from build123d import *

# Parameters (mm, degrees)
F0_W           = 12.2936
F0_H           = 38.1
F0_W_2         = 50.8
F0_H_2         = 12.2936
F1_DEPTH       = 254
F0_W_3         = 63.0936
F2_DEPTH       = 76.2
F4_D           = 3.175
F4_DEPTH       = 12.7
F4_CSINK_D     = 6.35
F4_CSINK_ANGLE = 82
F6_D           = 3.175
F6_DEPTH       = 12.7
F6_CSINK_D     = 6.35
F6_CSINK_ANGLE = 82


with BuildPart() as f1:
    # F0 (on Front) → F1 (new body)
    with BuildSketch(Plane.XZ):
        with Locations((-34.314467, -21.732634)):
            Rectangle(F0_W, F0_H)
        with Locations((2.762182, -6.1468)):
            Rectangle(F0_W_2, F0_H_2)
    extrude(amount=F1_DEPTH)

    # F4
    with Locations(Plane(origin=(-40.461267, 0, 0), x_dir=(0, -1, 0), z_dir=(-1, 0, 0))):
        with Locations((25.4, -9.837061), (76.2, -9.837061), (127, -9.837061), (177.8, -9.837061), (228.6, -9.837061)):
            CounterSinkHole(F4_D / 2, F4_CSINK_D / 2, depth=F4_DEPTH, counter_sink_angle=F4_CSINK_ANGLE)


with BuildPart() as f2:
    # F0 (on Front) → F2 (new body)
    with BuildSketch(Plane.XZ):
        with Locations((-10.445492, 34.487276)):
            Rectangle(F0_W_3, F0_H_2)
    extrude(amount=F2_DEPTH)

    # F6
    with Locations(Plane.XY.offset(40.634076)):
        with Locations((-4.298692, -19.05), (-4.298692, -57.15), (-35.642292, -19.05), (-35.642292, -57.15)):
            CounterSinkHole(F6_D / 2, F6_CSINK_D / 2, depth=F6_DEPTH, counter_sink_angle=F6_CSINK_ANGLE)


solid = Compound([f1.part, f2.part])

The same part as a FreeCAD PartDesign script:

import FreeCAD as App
import Part
import Sketcher
from FreeCAD import Vector
Q = App.Units.Quantity

doc = App.newDocument("Part")
body = doc.addObject("PartDesign::Body", "Body")
body.AllowCompound = True

# Sketch on XZ plane
sketch1 = doc.addObject("Sketcher::SketchObject", "Sketch")
body.addObject(sketch1)
sketch1.AttachmentSupport = (doc.XZ_Plane, [""])
sketch1.MapMode = "FlatFace"
sketch1.addGeometry(Part.LineSegment(Vector(-40, -3, 0), Vector(-40, -41, 0)), False)
sketch1.addGeometry(Part.LineSegment(Vector(-40, -41, 0), Vector(-28, -41, 0)), False)
sketch1.addGeometry(Part.LineSegment(Vector(-28, -41, 0), Vector(-28, -3, 0)), False)
sketch1.addGeometry(Part.LineSegment(Vector(-28, -3, 0), Vector(-40, -3, 0)), False)
sketch1.addGeometry(Part.LineSegment(Vector(-23, 0, 0), Vector(-23, -12, 0)), False)
sketch1.addGeometry(Part.LineSegment(Vector(-23, -12, 0), Vector(28, -12, 0)), False)
sketch1.addGeometry(Part.LineSegment(Vector(28, -12, 0), Vector(28, 0, 0)), False)
sketch1.addGeometry(Part.LineSegment(Vector(28, 0, 0), Vector(-23, 0, 0)), False)
sketch1.addConstraint(Sketcher.Constraint("Coincident", 0, 2, 1, 1))
sketch1.addConstraint(Sketcher.Constraint("Coincident", 1, 2, 2, 1))
sketch1.addConstraint(Sketcher.Constraint("Coincident", 2, 2, 3, 1))
sketch1.addConstraint(Sketcher.Constraint("Coincident", 3, 2, 0, 1))
sketch1.addConstraint(Sketcher.Constraint("Coincident", 4, 2, 5, 1))
sketch1.addConstraint(Sketcher.Constraint("Coincident", 5, 2, 6, 1))
sketch1.addConstraint(Sketcher.Constraint("Coincident", 6, 2, 7, 1))
sketch1.addConstraint(Sketcher.Constraint("Coincident", 7, 2, 4, 1))
sketch1.addConstraint(Sketcher.Constraint("Vertical", 0))
sketch1.addConstraint(Sketcher.Constraint("Horizontal", 1))
sketch1.addConstraint(Sketcher.Constraint("Vertical", 2))
sketch1.addConstraint(Sketcher.Constraint("Horizontal", 3))
sketch1.addConstraint(Sketcher.Constraint("Vertical", 4))
sketch1.addConstraint(Sketcher.Constraint("Horizontal", 5))
sketch1.addConstraint(Sketcher.Constraint("Vertical", 6))
sketch1.addConstraint(Sketcher.Constraint("Horizontal", 7))
sketch1.addConstraint(Sketcher.Constraint("PointOnObject", 6, 2, -1))
sketch1.addConstraint(Sketcher.Constraint("Equal", 3, 4))
sketch1.addConstraint(Sketcher.Constraint("DistanceX", 5, 1, 5, 2, Q("2 in")))
sketch1.addConstraint(Sketcher.Constraint("DistanceY", 0, 2, 0, 1, Q("1.5 in")))
sketch1.addConstraint(Sketcher.Constraint("DistanceX", 1, 1, 1, 2, Q("0.484 in")))
sketch1.addConstraint(Sketcher.Constraint("DistanceX", 2, 2, 4, 2, 5.529849))
sketch1.addConstraint(Sketcher.Constraint("DistanceX", 0, 2, -1, 1, 40.461267))
sketch1.addConstraint(Sketcher.Constraint("DistanceY", 0, 2, -1, 1, 40.782634))
pad1 = doc.addObject("PartDesign::Pad", "Pad")
body.addObject(pad1)
pad1.Profile = sketch1
pad1.Length = Q("10 in")

# Sketch on YZ plane
sketch2 = doc.addObject("Sketcher::SketchObject", "Sketch001")
body.addObject(sketch2)
sketch2.AttachmentSupport = (doc.YZ_Plane, [""])
sketch2.MapMode = "FlatFace"
sketch2.AttachmentOffset = App.Placement(Vector(0, 0, -40.461267), App.Rotation())
sketch2.addGeometry(Part.Circle(Vector(-25.4, -9.8, 0), Vector(0, 0, 1), 1.6), False)
sketch2.addGeometry(Part.Circle(Vector(-76.2, -9.8, 0), Vector(0, 0, 1), 1.6), False)
sketch2.addGeometry(Part.Circle(Vector(-127, -9.8, 0), Vector(0, 0, 1), 1.6), False)
sketch2.addGeometry(Part.Circle(Vector(-177.8, -9.8, 0), Vector(0, 0, 1), 1.6), False)
sketch2.addGeometry(Part.Circle(Vector(-228.6, -9.8, 0), Vector(0, 0, 1), 1.6), False)
sketch2.addConstraint(Sketcher.Constraint("Equal", 0, 1))
sketch2.addConstraint(Sketcher.Constraint("Equal", 1, 2))
sketch2.addConstraint(Sketcher.Constraint("Equal", 2, 3))
sketch2.addConstraint(Sketcher.Constraint("Equal", 3, 4))
sketch2.addConstraint(Sketcher.Constraint("Horizontal", 0, 3, 1, 3))
sketch2.addConstraint(Sketcher.Constraint("Horizontal", 1, 3, 2, 3))
sketch2.addConstraint(Sketcher.Constraint("Horizontal", 2, 3, 3, 3))
sketch2.addConstraint(Sketcher.Constraint("Horizontal", 3, 3, 4, 3))
sketch2.addConstraint(Sketcher.Constraint("Diameter", 0, Q("0.125 in")))
sketch2.addConstraint(Sketcher.Constraint("DistanceX", 0, 3, -1, 1, Q("1 in")))
sketch2.addConstraint(Sketcher.Constraint("DistanceX", 1, 3, -1, 1, Q("3 in")))
sketch2.addConstraint(Sketcher.Constraint("DistanceX", 2, 3, -1, 1, Q("5 in")))
sketch2.addConstraint(Sketcher.Constraint("DistanceX", 3, 3, -1, 1, Q("7 in")))
sketch2.addConstraint(Sketcher.Constraint("DistanceX", 4, 3, -1, 1, Q("9 in")))
sketch2.addConstraint(Sketcher.Constraint("DistanceY", 0, 3, -1, 1, 9.837061))
doc.recompute()
hole = doc.addObject("PartDesign::Hole", "Hole")
body.addObject(hole)
hole.Profile = sketch2
hole.ThreadType = "None"
hole.Diameter = Q("0.125 in")
hole.DepthType = "Dimension"
hole.Depth = Q("0.5 in")
hole.DrillPoint = "Flat"
hole.HoleCutType = "Countersink"
hole.HoleCutDiameter = Q("0.25 in")
hole.HoleCutCountersinkAngle = 82
hole.Reversed = True
body2 = doc.addObject("PartDesign::Body", "Body001")

# Sketch on XZ plane
sketch3 = doc.addObject("Sketcher::SketchObject", "Sketch002")
body2.addObject(sketch3)
sketch3.AttachmentSupport = (doc.getObject("XZ_Plane001"), [""])
sketch3.MapMode = "FlatFace"
sketch3.addGeometry(Part.LineSegment(Vector(-42, 41, 0), Vector(-42, 28, 0)), False)
sketch3.addGeometry(Part.LineSegment(Vector(-42, 28, 0), Vector(21, 28, 0)), False)
sketch3.addGeometry(Part.LineSegment(Vector(21, 28, 0), Vector(21, 41, 0)), False)
sketch3.addGeometry(Part.LineSegment(Vector(21, 41, 0), Vector(-42, 41, 0)), False)
sketch3.addConstraint(Sketcher.Constraint("Coincident", 0, 2, 1, 1))
sketch3.addConstraint(Sketcher.Constraint("Coincident", 1, 2, 2, 1))
sketch3.addConstraint(Sketcher.Constraint("Coincident", 2, 2, 3, 1))
sketch3.addConstraint(Sketcher.Constraint("Coincident", 3, 2, 0, 1))
sketch3.addConstraint(Sketcher.Constraint("Vertical", 0))
sketch3.addConstraint(Sketcher.Constraint("Horizontal", 1))
sketch3.addConstraint(Sketcher.Constraint("Vertical", 2))
sketch3.addConstraint(Sketcher.Constraint("Horizontal", 3))
sketch3.addConstraint(Sketcher.Constraint("DistanceX", 1, 1, 1, 2, Q("2.484 in")))
sketch3.addConstraint(Sketcher.Constraint("DistanceY", 0, 2, 0, 1, Q("0.484 in")))
sketch3.addConstraint(Sketcher.Constraint("DistanceX", 0, 2, -1, 1, 41.992292))
sketch3.addConstraint(Sketcher.Constraint("DistanceY", -1, 1, 0, 2, 28.340476))
pad2 = doc.addObject("PartDesign::Pad", "Pad001")
body2.addObject(pad2)
pad2.Profile = sketch3
pad2.Length = Q("3 in")

# Sketch on XY plane
sketch4 = doc.addObject("Sketcher::SketchObject", "Sketch003")
body2.addObject(sketch4)
sketch4.AttachmentSupport = (doc.getObject("XY_Plane001"), [""])
sketch4.MapMode = "FlatFace"
sketch4.AttachmentOffset = App.Placement(Vector(0, 0, 40.634076), App.Rotation())
sketch4.addGeometry(Part.Circle(Vector(-4.3, -19.1, 0), Vector(0, 0, 1), 1.6), False)
sketch4.addGeometry(Part.Circle(Vector(-4.3, -57.1, 0), Vector(0, 0, 1), 1.6), False)
sketch4.addGeometry(Part.Circle(Vector(-35.6, -19.1, 0), Vector(0, 0, 1), 1.6), False)
sketch4.addGeometry(Part.Circle(Vector(-35.6, -57.1, 0), Vector(0, 0, 1), 1.6), False)
sketch4.addConstraint(Sketcher.Constraint("Equal", 0, 1))
sketch4.addConstraint(Sketcher.Constraint("Equal", 1, 2))
sketch4.addConstraint(Sketcher.Constraint("Equal", 2, 3))
sketch4.addConstraint(Sketcher.Constraint("Horizontal", 0, 3, 2, 3))
sketch4.addConstraint(Sketcher.Constraint("Horizontal", 1, 3, 3, 3))
sketch4.addConstraint(Sketcher.Constraint("Vertical", 0, 3, 1, 3))
sketch4.addConstraint(Sketcher.Constraint("Vertical", 2, 3, 3, 3))
sketch4.addConstraint(Sketcher.Constraint("Diameter", 0, Q("0.125 in")))
sketch4.addConstraint(Sketcher.Constraint("DistanceY", 1, 3, 0, 3, Q("1.5 in")))
sketch4.addConstraint(Sketcher.Constraint("DistanceY", 0, 3, -1, 1, Q("0.75 in")))
sketch4.addConstraint(Sketcher.Constraint("DistanceX", 2, 3, 0, 3, Q("1.234 in")))
sketch4.addConstraint(Sketcher.Constraint("DistanceX", 2, 3, -1, 1, 35.642292))
doc.recompute()
hole2 = doc.addObject("PartDesign::Hole", "Hole001")
body2.addObject(hole2)
hole2.Profile = sketch4
hole2.ThreadType = "None"
hole2.Diameter = Q("0.125 in")
hole2.DepthType = "Dimension"
hole2.Depth = Q("0.5 in")
hole2.DrillPoint = "Flat"
hole2.HoleCutType = "Countersink"
hole2.HoleCutDiameter = Q("0.25 in")
hole2.HoleCutCountersinkAngle = 82

doc.recompute()
